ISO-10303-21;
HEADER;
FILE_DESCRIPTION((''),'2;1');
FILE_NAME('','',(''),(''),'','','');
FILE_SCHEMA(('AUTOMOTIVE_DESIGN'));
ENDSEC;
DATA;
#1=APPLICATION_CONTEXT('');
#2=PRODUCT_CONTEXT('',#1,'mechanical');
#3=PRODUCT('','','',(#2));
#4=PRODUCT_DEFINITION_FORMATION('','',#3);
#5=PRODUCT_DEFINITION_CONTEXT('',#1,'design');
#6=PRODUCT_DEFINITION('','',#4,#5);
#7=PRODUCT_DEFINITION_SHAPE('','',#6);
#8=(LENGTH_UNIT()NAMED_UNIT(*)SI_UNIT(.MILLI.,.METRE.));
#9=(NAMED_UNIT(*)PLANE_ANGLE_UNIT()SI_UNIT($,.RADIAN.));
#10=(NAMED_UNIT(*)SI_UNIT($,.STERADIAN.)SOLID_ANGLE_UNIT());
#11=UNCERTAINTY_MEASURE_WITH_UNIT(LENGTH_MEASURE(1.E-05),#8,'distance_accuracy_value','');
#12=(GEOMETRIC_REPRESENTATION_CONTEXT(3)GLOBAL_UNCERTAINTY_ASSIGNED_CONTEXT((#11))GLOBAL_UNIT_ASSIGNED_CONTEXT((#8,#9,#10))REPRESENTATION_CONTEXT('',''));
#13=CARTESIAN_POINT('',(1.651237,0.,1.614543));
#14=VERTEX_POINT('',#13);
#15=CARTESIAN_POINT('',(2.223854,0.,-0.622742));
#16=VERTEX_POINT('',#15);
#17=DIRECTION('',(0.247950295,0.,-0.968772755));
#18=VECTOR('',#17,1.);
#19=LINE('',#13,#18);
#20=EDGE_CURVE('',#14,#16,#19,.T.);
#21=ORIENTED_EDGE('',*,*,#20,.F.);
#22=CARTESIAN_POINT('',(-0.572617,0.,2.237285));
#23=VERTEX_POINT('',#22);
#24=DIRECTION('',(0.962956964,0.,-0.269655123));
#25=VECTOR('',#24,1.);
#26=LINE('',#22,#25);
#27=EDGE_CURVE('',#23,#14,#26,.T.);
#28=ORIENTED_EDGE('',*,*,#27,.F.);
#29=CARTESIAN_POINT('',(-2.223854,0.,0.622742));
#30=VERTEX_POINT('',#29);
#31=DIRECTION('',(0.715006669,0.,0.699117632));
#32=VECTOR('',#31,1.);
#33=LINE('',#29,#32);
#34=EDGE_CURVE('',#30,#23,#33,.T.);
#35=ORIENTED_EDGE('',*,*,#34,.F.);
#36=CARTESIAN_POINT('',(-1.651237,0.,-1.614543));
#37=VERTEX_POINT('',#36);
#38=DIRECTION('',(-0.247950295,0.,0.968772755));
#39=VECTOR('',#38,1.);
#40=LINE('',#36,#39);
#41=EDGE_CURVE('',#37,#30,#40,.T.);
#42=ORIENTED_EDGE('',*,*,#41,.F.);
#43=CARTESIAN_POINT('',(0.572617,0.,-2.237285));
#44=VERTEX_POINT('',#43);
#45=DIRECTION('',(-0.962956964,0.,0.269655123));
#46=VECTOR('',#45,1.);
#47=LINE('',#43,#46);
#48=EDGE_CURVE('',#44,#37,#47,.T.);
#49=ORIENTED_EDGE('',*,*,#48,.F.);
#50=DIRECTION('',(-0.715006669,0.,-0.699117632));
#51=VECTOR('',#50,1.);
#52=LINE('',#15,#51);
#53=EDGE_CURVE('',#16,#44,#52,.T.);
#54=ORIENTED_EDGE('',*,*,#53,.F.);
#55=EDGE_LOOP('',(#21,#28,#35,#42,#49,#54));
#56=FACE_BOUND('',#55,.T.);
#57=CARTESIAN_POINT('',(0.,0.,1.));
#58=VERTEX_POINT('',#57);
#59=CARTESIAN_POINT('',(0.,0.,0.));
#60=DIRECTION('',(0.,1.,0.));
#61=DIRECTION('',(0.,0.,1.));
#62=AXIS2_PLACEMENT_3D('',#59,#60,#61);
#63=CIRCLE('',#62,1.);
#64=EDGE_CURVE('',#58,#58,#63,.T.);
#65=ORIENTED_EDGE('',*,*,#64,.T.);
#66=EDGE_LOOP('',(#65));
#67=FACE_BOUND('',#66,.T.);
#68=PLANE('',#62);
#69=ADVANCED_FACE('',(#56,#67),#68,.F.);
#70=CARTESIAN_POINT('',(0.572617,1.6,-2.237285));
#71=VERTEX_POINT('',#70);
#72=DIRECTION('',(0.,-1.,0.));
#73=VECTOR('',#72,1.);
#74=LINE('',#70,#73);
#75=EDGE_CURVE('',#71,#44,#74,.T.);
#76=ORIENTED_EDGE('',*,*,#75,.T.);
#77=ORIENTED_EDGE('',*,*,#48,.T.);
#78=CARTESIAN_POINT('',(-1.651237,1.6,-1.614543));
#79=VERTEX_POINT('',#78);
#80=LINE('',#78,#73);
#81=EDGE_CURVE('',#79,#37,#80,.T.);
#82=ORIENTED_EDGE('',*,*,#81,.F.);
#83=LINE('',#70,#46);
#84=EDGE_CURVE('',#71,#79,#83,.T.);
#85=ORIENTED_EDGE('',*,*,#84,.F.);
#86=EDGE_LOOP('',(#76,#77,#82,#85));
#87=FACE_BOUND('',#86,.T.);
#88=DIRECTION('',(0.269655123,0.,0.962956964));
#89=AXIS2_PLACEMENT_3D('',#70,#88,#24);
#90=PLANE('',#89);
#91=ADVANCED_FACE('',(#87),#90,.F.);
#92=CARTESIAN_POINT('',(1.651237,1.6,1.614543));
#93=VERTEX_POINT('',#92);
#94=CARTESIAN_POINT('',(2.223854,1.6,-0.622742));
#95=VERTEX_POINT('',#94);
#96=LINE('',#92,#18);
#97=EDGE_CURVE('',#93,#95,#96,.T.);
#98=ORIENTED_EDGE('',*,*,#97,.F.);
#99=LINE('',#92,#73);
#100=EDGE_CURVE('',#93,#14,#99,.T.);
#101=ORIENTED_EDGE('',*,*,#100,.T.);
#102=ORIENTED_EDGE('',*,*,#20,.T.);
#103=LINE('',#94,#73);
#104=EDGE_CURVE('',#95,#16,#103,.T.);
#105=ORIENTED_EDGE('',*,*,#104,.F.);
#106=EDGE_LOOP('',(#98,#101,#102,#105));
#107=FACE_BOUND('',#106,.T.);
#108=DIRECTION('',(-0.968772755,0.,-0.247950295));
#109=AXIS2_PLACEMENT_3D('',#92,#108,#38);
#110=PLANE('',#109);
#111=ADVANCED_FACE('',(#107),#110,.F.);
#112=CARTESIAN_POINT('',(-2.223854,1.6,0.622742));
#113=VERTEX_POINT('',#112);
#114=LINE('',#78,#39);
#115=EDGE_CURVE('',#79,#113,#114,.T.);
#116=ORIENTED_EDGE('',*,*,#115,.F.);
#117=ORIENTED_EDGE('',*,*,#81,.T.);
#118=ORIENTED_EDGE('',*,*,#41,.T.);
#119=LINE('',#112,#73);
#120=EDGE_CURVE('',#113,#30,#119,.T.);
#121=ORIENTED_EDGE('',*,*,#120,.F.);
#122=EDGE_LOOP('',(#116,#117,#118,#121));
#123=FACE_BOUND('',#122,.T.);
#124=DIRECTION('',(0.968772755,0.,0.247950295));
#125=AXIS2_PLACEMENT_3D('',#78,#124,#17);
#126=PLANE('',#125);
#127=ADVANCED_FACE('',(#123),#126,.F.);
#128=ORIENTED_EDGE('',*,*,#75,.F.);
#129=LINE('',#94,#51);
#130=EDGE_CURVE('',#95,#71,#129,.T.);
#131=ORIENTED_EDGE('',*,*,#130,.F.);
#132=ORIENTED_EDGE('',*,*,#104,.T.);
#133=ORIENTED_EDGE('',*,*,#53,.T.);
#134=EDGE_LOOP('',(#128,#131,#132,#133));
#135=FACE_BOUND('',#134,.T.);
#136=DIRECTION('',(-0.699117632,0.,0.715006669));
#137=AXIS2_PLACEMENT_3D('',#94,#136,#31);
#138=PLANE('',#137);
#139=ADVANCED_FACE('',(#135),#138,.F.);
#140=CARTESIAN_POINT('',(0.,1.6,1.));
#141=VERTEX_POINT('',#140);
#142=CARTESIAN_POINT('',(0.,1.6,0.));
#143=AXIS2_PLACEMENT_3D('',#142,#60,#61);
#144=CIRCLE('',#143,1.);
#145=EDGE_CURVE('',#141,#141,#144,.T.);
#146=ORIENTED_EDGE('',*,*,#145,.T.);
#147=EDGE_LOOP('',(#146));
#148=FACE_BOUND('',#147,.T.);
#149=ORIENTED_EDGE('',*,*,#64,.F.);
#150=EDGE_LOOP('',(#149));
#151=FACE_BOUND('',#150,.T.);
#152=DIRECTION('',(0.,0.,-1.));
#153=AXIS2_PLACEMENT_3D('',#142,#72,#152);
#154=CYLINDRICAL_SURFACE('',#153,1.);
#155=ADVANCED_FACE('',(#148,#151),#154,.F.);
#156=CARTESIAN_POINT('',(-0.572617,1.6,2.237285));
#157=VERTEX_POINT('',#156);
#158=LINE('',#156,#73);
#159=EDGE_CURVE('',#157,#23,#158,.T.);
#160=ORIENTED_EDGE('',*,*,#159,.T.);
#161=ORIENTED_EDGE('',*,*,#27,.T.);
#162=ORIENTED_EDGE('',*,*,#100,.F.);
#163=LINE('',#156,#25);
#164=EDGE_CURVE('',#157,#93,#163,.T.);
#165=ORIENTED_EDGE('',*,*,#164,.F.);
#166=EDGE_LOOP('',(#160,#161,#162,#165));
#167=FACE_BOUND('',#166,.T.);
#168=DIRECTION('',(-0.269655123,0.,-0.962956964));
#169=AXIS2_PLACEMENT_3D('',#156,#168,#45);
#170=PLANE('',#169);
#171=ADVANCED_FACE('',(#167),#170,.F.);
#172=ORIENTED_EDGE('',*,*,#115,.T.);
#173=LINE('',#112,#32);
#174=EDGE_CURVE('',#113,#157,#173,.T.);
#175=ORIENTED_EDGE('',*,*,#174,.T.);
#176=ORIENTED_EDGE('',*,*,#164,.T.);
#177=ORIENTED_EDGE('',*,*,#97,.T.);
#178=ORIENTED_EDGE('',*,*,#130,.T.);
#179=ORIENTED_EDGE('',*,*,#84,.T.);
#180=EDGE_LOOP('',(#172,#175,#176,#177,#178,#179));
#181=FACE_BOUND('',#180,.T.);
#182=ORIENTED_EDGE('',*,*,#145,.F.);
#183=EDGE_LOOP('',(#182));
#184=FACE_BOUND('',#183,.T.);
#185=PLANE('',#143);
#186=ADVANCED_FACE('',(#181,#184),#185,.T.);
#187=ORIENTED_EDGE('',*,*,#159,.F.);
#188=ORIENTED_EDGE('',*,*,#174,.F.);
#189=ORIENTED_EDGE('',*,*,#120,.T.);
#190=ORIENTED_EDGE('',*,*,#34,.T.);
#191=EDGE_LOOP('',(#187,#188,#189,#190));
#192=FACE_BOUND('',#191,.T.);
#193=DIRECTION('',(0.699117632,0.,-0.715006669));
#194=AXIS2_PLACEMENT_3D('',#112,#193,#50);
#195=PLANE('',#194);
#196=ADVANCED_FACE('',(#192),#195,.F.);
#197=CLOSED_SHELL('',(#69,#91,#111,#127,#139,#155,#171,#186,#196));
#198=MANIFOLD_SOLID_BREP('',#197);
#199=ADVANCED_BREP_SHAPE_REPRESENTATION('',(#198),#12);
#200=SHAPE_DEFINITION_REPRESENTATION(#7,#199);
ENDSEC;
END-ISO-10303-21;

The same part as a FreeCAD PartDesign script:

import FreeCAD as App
import Part
import Sketcher

V = App.Vector


def add_polygon(sketch, points):
    """Adds a closed chain of lines whose ends are joined by coincident constraints."""
    first, n = sketch.GeometryCount, len(points)
    for a, b in zip(points, points[1:] + points[:1]):
        sketch.addGeometry(Part.LineSegment(App.Vector(*a, 0), App.Vector(*b, 0)), False)
    for i in range(n):
        sketch.addConstraint(Sketcher.Constraint("Coincident", first + i, 2, first + (i + 1) % n, 1))

doc = App.newDocument("Part")
body = doc.addObject("PartDesign::Body", "Body")

# Sketch on XZ plane
sketch1 = body.newObject("Sketcher::SketchObject", "Sketch")
sketch1.AttachmentSupport = (doc.getObject("XZ_Plane"), [""])
sketch1.MapMode = "FlatFace"
add_polygon(sketch1, [(1.7, 1.6), (2.2, -0.6), (0.6, -2.2), (-1.7, -1.6), (-2.2, 0.6), (-0.6, 2.2)])  # lines 0-5
sketch1.addGeometry(Part.Circle(V(0, 0, 0), V(0, 0, 1), 1), False)  # 6
sketch1.addConstraint(Sketcher.Constraint("Coincident", 6, 3, -1, 1))
sketch1.addConstraint(Sketcher.Constraint("Symmetric", 0, 2, 3, 2, -1, 1))
sketch1.addConstraint(Sketcher.Constraint("Symmetric", 1, 2, 4, 2, -1, 1))
sketch1.addConstraint(Sketcher.Constraint("Symmetric", 2, 2, 5, 2, -1, 1))
sketch1.addConstraint(Sketcher.Constraint("Equal", 0, 1))
sketch1.addConstraint(Sketcher.Constraint("Equal", 1, 2))
sketch1.addConstraint(Sketcher.Constraint("Diameter", 6, 2.0))
sketch1.addConstraint(Sketcher.Constraint("Distance", 0, 2.309401))
sketch1.addConstraint(Sketcher.Constraint("DistanceY", 2, 2, 0, 2, 0.991801))
sketch1.addConstraint(Sketcher.Constraint("DistanceY", 0, 2, -1, 1, 0.622742))
sketch1.addConstraint(Sketcher.Constraint("DistanceY", 1, 2, 2, 2, 0.622742))
pad1 = body.newObject("PartDesign::Pad", "Pad")
pad1.Profile = sketch1
pad1.Length = 1.6
pad1.Reversed = True

doc.recompute()
